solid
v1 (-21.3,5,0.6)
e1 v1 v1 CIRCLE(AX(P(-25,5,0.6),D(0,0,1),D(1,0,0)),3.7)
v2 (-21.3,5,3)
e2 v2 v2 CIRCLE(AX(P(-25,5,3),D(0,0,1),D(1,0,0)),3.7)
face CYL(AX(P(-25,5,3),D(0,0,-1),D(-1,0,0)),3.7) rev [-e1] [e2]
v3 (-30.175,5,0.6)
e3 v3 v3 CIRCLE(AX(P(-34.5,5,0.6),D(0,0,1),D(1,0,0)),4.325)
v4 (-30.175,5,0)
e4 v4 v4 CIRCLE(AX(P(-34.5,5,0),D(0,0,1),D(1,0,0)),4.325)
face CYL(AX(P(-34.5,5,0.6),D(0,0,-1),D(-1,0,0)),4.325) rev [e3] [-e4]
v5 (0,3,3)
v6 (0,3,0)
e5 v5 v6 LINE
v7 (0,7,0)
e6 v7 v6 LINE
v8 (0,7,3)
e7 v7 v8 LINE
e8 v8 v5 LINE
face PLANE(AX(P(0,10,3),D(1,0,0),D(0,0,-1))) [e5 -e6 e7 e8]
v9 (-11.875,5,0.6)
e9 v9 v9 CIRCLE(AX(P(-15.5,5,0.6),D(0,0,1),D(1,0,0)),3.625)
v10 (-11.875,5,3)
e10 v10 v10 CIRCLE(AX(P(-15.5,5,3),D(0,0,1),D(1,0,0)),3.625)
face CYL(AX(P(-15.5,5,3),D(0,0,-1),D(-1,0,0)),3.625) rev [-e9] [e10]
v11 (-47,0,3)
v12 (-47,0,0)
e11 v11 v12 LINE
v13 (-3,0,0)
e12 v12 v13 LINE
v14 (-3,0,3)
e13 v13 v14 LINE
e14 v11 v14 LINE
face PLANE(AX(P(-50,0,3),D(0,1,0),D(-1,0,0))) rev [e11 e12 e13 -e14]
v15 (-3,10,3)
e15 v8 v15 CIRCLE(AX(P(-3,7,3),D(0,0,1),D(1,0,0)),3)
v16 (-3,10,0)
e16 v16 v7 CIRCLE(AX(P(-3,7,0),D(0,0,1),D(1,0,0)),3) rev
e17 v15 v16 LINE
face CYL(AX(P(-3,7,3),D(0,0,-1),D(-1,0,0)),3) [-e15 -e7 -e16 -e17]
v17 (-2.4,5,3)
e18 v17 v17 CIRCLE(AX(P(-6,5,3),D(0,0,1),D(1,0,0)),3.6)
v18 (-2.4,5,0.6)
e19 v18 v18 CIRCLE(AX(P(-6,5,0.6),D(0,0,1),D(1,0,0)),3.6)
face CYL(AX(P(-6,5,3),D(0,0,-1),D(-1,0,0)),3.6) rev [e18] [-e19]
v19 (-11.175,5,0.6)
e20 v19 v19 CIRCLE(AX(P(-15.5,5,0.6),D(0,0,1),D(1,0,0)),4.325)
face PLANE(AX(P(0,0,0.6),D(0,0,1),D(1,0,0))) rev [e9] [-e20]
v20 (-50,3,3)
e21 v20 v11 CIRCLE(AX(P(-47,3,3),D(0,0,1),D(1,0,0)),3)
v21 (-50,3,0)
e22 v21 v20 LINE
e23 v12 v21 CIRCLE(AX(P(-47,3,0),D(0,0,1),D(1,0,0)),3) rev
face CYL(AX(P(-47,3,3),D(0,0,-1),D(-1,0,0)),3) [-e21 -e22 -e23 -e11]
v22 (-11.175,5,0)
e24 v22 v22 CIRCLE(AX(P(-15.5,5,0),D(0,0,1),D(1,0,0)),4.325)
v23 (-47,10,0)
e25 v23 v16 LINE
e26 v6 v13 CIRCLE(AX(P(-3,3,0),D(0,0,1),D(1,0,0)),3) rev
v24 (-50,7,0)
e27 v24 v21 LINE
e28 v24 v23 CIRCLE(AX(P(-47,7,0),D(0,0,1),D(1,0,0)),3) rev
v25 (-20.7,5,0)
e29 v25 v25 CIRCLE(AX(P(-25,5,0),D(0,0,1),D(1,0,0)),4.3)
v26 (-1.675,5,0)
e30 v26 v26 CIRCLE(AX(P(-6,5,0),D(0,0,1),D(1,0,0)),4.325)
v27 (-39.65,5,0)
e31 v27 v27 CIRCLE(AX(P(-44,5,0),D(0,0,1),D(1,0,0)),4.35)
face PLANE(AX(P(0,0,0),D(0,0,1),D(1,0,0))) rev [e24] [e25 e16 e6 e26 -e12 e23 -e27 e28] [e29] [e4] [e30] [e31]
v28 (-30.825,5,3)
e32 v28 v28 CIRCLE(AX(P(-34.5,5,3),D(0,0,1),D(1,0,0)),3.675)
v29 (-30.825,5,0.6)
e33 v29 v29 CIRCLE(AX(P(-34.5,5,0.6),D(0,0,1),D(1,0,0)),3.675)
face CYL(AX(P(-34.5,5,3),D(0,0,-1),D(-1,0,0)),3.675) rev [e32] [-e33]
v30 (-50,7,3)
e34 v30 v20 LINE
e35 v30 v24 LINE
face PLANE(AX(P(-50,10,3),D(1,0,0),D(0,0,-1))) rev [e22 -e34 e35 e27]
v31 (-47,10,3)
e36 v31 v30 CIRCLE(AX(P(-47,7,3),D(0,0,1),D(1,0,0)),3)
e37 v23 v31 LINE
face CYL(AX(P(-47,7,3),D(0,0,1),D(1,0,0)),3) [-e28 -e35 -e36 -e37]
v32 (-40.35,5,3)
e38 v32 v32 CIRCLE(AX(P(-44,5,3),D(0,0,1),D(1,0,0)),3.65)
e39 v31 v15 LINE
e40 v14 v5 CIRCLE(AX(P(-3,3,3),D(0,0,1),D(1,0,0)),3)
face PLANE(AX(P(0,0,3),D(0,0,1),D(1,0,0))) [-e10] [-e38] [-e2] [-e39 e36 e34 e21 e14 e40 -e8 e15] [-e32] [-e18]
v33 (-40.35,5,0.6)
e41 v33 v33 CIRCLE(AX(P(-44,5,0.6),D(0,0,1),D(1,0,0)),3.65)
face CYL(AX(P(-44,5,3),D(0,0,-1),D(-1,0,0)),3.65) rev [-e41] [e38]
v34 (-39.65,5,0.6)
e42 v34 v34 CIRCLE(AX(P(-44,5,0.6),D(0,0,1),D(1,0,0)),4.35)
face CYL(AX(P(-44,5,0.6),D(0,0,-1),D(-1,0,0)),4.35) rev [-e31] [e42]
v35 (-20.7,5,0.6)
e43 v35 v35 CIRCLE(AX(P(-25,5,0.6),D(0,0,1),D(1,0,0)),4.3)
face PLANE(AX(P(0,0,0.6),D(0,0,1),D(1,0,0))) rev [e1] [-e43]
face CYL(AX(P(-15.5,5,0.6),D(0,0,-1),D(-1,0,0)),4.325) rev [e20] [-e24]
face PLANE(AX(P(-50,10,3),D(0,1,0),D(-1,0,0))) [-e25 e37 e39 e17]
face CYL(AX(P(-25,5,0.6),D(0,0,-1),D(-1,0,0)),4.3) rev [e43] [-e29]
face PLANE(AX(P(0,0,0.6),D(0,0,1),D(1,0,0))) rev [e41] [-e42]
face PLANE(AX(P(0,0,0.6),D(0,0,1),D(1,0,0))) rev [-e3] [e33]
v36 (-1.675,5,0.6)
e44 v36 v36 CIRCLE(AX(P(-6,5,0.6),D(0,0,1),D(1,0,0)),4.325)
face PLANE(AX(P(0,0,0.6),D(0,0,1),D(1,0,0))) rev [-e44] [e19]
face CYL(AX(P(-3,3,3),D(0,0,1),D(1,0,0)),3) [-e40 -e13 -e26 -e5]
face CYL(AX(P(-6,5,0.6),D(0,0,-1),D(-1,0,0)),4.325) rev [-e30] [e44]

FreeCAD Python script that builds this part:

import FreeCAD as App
import Part
import Sketcher
from FreeCAD import Vector


def edges_at(feature, points):
    """Names of the edges that pass closest to the given points."""
    edges = feature.Shape.Edges
    near = lambda p: min(range(len(edges)), key=lambda i: edges[i].distToShape(Part.Vertex(*p))[0])
    return sorted({f"Edge{near(p) + 1}" for p in points})


def add_polygon(sketch, points):
    """Adds a closed chain of lines whose ends are joined by coincident constraints."""
    first, n = sketch.GeometryCount, len(points)
    for a, b in zip(points, points[1:] + points[:1]):
        sketch.addGeometry(Part.LineSegment(App.Vector(*a, 0), App.Vector(*b, 0)), False)
    for i in range(n):
        sketch.addConstraint(Sketcher.Constraint("Coincident", first + i, 2, first + (i + 1) % n, 1))

doc = App.newDocument("Part")
body = doc.addObject("PartDesign::Body", "Body")

sketch1 = doc.addObject("Sketcher::SketchObject", "Sketch")
body.addObject(sketch1)
sketch1.AttachmentSupport = (doc.XY_Plane, [""])
sketch1.MapMode = "FlatFace"
add_polygon(sketch1, [(-50, 10), (-50, 0), (0, 0), (0, 10)])
sketch1.addConstraint([
    Sketcher.Constraint("Vertical", 0),
    Sketcher.Constraint("Horizontal", 1),
    Sketcher.Constraint("Vertical", 2),
    Sketcher.Constraint("Horizontal", 3),
    Sketcher.Constraint("Coincident", 1, 2, -1, 1),
    Sketcher.Constraint("DistanceX", 1, 1, 1, 2, 50.0),
    Sketcher.Constraint("DistanceY", 0, 2, 0, 1, 10.0),
])
pad1 = doc.addObject("PartDesign::Pad", "Pad")
body.addObject(pad1)
pad1.Profile = sketch1
pad1.Length = 3

sketch2 = doc.addObject("Sketcher::SketchObject", "Sketch001")
body.addObject(sketch2)
sketch2.AttachmentSupport = (doc.XY_Plane, [""])
sketch2.MapMode = "FlatFace"
sketch2.addGeometry([
    Part.Circle(Vector(-25, 5, 0), Vector(0, 0, 1), 3.7),
    Part.Circle(Vector(-34.5, 5, 0), Vector(0, 0, 1), 3.7),
    Part.Circle(Vector(-44, 5, 0), Vector(0, 0, 1), 3.6),
    Part.Circle(Vector(-6, 5, 0), Vector(0, 0, 1), 3.6),
    Part.Circle(Vector(-15.5, 5, 0), Vector(0, 0, 1), 3.6),
], False)
sketch2.addConstraint([
    Sketcher.Constraint("Horizontal", 0, 3, 1, 3),
    Sketcher.Constraint("Horizontal", 1, 3, 2, 3),
    Sketcher.Constraint("Horizontal", 2, 3, 3, 3),
    Sketcher.Constraint("Horizontal", 3, 3, 4, 3),
    Sketcher.Constraint("Diameter", 0, 7.4),
    Sketcher.Constraint("Diameter", 2, 7.3),
    Sketcher.Constraint("Diameter", 3, 7.2),
    Sketcher.Constraint("Diameter", 1, 7.35),
    Sketcher.Constraint("Diameter", 4, 7.25),
    Sketcher.Constraint("DistanceX", 0, 3, -1, 1, 25.0),
    Sketcher.Constraint("DistanceY", -1, 1, 0, 3, 5.0),
    Sketcher.Constraint("DistanceX", 2, 3, -1, 1, 44.0),
    Sketcher.Constraint("DistanceX", 3, 3, -1, 1, 6.0),
    Sketcher.Constraint("DistanceX", 1, 3, 4, 3, 19.0),
    Sketcher.Constraint("DistanceX", 1, 3, -1, 1, 34.5),
])
pocket1 = doc.addObject("PartDesign::Pocket", "Pocket")
body.addObject(pocket1)
pocket1.Profile = sketch2
pocket1.Type = "ThroughAll"
pocket1.Reversed = True

sketch3 = doc.addObject("Sketcher::SketchObject", "Sketch002")
body.addObject(sketch3)
sketch3.AttachmentSupport = (doc.XY_Plane, [""])
sketch3.MapMode = "FlatFace"
sketch3.addGeometry([
    Part.Circle(Vector(-25, 5, 0), Vector(0, 0, 1), 4.3),
    Part.Circle(Vector(-25, 5, 0), Vector(0, 0, 1), 3.7),
    Part.Circle(Vector(-44, 5, 0), Vector(0, 0, 1), 4.3),
    Part.Circle(Vector(-44, 5, 0), Vector(0, 0, 1), 3.6),
    Part.Circle(Vector(-34.5, 5, 0), Vector(0, 0, 1), 4.3),
    Part.Circle(Vector(-34.5, 5, 0), Vector(0, 0, 1), 3.7),
    Part.Circle(Vector(-15.5, 5, 0), Vector(0, 0, 1), 4.3),
    Part.Circle(Vector(-15.5, 5, 0), Vector(0, 0, 1), 3.6),
    Part.Circle(Vector(-6, 5, 0), Vector(0, 0, 1), 4.3),
    Part.Circle(Vector(-6, 5, 0), Vector(0, 0, 1), 3.6),
], False)
sketch3.addConstraint([
    Sketcher.Constraint("Coincident", 1, 3, 0, 3),
    Sketcher.Constraint("Coincident", 3, 3, 2, 3),
    Sketcher.Constraint("Coincident", 5, 3, 4, 3),
    Sketcher.Constraint("Coincident", 7, 3, 6, 3),
    Sketcher.Constraint("Coincident", 9, 3, 8, 3),
    Sketcher.Constraint("Equal", 4, 6),
    Sketcher.Constraint("Equal", 6, 8),
    Sketcher.Constraint("Horizontal", 1, 3, 2, 3),
    Sketcher.Constraint("Horizontal", 3, 3, 4, 3),
    Sketcher.Constraint("Horizontal", 5, 3, 6, 3),
    Sketcher.Constraint("Horizontal", 7, 3, 8, 3),
    Sketcher.Constraint("Diameter", 0, 8.6),
    Sketcher.Constraint("Diameter", 1, 7.4),
    Sketcher.Constraint("Diameter", 2, 8.7),
    Sketcher.Constraint("Diameter", 3, 7.3),
    Sketcher.Constraint("Diameter", 9, 7.2),
    Sketcher.Constraint("Diameter", 4, 8.65),
    Sketcher.Constraint("Diameter", 5, 7.35),
    Sketcher.Constraint("Diameter", 7, 7.25),
    Sketcher.Constraint("DistanceX", 0, 3, -1, 1, 25.0),
    Sketcher.Constraint("DistanceY", -1, 1, 0, 3, 5.0),
    Sketcher.Constraint("DistanceX", 2, 3, -1, 1, 44.0),
    Sketcher.Constraint("DistanceX", 8, 3, -1, 1, 6.0),
    Sketcher.Constraint("DistanceX", 4, 3, 6, 3, 19.0),
    Sketcher.Constraint("DistanceX", 4, 3, -1, 1, 34.5),
])
pocket2 = doc.addObject("PartDesign::Pocket", "Pocket001")
body.addObject(pocket2)
pocket2.Profile = sketch3
pocket2.Length = 0.6
pocket2.Reversed = True
doc.recompute()

fillet = doc.addObject("PartDesign::Fillet", "Fillet")
body.addObject(fillet)
fillet.Base = (pocket2, edges_at(pocket2, [
    (-50, 10, 1.5),
    (0, 10, 1.5),
    (0, 0, 1.5),
    (-50, 0, 1.5),
]))
fillet.Radius = 3

doc.recompute()
